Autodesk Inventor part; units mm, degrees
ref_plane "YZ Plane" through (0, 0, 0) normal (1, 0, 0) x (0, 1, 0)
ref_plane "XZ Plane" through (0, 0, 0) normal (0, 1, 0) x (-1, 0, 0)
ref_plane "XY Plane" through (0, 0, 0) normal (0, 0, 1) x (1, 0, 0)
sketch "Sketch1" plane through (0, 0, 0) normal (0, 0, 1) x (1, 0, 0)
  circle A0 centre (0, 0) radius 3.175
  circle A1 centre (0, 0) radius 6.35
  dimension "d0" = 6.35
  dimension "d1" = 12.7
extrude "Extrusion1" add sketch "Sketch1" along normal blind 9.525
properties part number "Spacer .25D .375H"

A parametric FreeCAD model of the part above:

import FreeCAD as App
import Part
import Sketcher
from FreeCAD import Vector
Q = App.Units.Quantity

doc = App.newDocument("Part")
params = doc.addObject("Spreadsheet::Sheet", "Params")
for row, (alias, value) in enumerate([
    ("sketch1_diameter", "0.5 in"),
    ("sketch1_diameter2", "0.25 in"),
    ("pad1_length", "0.375 in"),
], start=1):
    params.set(f"A{row}", alias)
    params.set(f"B{row}", "=" + value)
    params.setAlias(f"B{row}", alias)

body = doc.addObject("PartDesign::Body", "Body")

sketch1 = body.newObject("Sketcher::SketchObject", "Sketch")
sketch1.AttachmentSupport = (doc.getObject("XY_Plane"), [""])
sketch1.MapMode = "FlatFace"
sketch1.addGeometry(Part.Circle(Vector(0, 0, 0), Vector(0, 0, 1), 6.35), False)
sketch1.addGeometry(Part.Circle(Vector(0, 0, 0), Vector(0, 0, 1), 3.175), False)
sketch1.addConstraint(Sketcher.Constraint("Coincident", 0, 3, -1, 1))
sketch1.addConstraint(Sketcher.Constraint("Coincident", 1, 3, -1, 1))
sketch1.addConstraint(Sketcher.Constraint("Diameter", 0, Q("0.5 in")))
sketch1.addConstraint(Sketcher.Constraint("Diameter", 1, Q("0.25 in")))
sketch1.setExpression("Constraints[2]", "Params.sketch1_diameter")
sketch1.setExpression("Constraints[3]", "Params.sketch1_diameter2")
pad1 = body.newObject("PartDesign::Pad", "Pad")
pad1.Profile = sketch1
pad1.setExpression("Length", "Params.pad1_length")

doc.recompute()
